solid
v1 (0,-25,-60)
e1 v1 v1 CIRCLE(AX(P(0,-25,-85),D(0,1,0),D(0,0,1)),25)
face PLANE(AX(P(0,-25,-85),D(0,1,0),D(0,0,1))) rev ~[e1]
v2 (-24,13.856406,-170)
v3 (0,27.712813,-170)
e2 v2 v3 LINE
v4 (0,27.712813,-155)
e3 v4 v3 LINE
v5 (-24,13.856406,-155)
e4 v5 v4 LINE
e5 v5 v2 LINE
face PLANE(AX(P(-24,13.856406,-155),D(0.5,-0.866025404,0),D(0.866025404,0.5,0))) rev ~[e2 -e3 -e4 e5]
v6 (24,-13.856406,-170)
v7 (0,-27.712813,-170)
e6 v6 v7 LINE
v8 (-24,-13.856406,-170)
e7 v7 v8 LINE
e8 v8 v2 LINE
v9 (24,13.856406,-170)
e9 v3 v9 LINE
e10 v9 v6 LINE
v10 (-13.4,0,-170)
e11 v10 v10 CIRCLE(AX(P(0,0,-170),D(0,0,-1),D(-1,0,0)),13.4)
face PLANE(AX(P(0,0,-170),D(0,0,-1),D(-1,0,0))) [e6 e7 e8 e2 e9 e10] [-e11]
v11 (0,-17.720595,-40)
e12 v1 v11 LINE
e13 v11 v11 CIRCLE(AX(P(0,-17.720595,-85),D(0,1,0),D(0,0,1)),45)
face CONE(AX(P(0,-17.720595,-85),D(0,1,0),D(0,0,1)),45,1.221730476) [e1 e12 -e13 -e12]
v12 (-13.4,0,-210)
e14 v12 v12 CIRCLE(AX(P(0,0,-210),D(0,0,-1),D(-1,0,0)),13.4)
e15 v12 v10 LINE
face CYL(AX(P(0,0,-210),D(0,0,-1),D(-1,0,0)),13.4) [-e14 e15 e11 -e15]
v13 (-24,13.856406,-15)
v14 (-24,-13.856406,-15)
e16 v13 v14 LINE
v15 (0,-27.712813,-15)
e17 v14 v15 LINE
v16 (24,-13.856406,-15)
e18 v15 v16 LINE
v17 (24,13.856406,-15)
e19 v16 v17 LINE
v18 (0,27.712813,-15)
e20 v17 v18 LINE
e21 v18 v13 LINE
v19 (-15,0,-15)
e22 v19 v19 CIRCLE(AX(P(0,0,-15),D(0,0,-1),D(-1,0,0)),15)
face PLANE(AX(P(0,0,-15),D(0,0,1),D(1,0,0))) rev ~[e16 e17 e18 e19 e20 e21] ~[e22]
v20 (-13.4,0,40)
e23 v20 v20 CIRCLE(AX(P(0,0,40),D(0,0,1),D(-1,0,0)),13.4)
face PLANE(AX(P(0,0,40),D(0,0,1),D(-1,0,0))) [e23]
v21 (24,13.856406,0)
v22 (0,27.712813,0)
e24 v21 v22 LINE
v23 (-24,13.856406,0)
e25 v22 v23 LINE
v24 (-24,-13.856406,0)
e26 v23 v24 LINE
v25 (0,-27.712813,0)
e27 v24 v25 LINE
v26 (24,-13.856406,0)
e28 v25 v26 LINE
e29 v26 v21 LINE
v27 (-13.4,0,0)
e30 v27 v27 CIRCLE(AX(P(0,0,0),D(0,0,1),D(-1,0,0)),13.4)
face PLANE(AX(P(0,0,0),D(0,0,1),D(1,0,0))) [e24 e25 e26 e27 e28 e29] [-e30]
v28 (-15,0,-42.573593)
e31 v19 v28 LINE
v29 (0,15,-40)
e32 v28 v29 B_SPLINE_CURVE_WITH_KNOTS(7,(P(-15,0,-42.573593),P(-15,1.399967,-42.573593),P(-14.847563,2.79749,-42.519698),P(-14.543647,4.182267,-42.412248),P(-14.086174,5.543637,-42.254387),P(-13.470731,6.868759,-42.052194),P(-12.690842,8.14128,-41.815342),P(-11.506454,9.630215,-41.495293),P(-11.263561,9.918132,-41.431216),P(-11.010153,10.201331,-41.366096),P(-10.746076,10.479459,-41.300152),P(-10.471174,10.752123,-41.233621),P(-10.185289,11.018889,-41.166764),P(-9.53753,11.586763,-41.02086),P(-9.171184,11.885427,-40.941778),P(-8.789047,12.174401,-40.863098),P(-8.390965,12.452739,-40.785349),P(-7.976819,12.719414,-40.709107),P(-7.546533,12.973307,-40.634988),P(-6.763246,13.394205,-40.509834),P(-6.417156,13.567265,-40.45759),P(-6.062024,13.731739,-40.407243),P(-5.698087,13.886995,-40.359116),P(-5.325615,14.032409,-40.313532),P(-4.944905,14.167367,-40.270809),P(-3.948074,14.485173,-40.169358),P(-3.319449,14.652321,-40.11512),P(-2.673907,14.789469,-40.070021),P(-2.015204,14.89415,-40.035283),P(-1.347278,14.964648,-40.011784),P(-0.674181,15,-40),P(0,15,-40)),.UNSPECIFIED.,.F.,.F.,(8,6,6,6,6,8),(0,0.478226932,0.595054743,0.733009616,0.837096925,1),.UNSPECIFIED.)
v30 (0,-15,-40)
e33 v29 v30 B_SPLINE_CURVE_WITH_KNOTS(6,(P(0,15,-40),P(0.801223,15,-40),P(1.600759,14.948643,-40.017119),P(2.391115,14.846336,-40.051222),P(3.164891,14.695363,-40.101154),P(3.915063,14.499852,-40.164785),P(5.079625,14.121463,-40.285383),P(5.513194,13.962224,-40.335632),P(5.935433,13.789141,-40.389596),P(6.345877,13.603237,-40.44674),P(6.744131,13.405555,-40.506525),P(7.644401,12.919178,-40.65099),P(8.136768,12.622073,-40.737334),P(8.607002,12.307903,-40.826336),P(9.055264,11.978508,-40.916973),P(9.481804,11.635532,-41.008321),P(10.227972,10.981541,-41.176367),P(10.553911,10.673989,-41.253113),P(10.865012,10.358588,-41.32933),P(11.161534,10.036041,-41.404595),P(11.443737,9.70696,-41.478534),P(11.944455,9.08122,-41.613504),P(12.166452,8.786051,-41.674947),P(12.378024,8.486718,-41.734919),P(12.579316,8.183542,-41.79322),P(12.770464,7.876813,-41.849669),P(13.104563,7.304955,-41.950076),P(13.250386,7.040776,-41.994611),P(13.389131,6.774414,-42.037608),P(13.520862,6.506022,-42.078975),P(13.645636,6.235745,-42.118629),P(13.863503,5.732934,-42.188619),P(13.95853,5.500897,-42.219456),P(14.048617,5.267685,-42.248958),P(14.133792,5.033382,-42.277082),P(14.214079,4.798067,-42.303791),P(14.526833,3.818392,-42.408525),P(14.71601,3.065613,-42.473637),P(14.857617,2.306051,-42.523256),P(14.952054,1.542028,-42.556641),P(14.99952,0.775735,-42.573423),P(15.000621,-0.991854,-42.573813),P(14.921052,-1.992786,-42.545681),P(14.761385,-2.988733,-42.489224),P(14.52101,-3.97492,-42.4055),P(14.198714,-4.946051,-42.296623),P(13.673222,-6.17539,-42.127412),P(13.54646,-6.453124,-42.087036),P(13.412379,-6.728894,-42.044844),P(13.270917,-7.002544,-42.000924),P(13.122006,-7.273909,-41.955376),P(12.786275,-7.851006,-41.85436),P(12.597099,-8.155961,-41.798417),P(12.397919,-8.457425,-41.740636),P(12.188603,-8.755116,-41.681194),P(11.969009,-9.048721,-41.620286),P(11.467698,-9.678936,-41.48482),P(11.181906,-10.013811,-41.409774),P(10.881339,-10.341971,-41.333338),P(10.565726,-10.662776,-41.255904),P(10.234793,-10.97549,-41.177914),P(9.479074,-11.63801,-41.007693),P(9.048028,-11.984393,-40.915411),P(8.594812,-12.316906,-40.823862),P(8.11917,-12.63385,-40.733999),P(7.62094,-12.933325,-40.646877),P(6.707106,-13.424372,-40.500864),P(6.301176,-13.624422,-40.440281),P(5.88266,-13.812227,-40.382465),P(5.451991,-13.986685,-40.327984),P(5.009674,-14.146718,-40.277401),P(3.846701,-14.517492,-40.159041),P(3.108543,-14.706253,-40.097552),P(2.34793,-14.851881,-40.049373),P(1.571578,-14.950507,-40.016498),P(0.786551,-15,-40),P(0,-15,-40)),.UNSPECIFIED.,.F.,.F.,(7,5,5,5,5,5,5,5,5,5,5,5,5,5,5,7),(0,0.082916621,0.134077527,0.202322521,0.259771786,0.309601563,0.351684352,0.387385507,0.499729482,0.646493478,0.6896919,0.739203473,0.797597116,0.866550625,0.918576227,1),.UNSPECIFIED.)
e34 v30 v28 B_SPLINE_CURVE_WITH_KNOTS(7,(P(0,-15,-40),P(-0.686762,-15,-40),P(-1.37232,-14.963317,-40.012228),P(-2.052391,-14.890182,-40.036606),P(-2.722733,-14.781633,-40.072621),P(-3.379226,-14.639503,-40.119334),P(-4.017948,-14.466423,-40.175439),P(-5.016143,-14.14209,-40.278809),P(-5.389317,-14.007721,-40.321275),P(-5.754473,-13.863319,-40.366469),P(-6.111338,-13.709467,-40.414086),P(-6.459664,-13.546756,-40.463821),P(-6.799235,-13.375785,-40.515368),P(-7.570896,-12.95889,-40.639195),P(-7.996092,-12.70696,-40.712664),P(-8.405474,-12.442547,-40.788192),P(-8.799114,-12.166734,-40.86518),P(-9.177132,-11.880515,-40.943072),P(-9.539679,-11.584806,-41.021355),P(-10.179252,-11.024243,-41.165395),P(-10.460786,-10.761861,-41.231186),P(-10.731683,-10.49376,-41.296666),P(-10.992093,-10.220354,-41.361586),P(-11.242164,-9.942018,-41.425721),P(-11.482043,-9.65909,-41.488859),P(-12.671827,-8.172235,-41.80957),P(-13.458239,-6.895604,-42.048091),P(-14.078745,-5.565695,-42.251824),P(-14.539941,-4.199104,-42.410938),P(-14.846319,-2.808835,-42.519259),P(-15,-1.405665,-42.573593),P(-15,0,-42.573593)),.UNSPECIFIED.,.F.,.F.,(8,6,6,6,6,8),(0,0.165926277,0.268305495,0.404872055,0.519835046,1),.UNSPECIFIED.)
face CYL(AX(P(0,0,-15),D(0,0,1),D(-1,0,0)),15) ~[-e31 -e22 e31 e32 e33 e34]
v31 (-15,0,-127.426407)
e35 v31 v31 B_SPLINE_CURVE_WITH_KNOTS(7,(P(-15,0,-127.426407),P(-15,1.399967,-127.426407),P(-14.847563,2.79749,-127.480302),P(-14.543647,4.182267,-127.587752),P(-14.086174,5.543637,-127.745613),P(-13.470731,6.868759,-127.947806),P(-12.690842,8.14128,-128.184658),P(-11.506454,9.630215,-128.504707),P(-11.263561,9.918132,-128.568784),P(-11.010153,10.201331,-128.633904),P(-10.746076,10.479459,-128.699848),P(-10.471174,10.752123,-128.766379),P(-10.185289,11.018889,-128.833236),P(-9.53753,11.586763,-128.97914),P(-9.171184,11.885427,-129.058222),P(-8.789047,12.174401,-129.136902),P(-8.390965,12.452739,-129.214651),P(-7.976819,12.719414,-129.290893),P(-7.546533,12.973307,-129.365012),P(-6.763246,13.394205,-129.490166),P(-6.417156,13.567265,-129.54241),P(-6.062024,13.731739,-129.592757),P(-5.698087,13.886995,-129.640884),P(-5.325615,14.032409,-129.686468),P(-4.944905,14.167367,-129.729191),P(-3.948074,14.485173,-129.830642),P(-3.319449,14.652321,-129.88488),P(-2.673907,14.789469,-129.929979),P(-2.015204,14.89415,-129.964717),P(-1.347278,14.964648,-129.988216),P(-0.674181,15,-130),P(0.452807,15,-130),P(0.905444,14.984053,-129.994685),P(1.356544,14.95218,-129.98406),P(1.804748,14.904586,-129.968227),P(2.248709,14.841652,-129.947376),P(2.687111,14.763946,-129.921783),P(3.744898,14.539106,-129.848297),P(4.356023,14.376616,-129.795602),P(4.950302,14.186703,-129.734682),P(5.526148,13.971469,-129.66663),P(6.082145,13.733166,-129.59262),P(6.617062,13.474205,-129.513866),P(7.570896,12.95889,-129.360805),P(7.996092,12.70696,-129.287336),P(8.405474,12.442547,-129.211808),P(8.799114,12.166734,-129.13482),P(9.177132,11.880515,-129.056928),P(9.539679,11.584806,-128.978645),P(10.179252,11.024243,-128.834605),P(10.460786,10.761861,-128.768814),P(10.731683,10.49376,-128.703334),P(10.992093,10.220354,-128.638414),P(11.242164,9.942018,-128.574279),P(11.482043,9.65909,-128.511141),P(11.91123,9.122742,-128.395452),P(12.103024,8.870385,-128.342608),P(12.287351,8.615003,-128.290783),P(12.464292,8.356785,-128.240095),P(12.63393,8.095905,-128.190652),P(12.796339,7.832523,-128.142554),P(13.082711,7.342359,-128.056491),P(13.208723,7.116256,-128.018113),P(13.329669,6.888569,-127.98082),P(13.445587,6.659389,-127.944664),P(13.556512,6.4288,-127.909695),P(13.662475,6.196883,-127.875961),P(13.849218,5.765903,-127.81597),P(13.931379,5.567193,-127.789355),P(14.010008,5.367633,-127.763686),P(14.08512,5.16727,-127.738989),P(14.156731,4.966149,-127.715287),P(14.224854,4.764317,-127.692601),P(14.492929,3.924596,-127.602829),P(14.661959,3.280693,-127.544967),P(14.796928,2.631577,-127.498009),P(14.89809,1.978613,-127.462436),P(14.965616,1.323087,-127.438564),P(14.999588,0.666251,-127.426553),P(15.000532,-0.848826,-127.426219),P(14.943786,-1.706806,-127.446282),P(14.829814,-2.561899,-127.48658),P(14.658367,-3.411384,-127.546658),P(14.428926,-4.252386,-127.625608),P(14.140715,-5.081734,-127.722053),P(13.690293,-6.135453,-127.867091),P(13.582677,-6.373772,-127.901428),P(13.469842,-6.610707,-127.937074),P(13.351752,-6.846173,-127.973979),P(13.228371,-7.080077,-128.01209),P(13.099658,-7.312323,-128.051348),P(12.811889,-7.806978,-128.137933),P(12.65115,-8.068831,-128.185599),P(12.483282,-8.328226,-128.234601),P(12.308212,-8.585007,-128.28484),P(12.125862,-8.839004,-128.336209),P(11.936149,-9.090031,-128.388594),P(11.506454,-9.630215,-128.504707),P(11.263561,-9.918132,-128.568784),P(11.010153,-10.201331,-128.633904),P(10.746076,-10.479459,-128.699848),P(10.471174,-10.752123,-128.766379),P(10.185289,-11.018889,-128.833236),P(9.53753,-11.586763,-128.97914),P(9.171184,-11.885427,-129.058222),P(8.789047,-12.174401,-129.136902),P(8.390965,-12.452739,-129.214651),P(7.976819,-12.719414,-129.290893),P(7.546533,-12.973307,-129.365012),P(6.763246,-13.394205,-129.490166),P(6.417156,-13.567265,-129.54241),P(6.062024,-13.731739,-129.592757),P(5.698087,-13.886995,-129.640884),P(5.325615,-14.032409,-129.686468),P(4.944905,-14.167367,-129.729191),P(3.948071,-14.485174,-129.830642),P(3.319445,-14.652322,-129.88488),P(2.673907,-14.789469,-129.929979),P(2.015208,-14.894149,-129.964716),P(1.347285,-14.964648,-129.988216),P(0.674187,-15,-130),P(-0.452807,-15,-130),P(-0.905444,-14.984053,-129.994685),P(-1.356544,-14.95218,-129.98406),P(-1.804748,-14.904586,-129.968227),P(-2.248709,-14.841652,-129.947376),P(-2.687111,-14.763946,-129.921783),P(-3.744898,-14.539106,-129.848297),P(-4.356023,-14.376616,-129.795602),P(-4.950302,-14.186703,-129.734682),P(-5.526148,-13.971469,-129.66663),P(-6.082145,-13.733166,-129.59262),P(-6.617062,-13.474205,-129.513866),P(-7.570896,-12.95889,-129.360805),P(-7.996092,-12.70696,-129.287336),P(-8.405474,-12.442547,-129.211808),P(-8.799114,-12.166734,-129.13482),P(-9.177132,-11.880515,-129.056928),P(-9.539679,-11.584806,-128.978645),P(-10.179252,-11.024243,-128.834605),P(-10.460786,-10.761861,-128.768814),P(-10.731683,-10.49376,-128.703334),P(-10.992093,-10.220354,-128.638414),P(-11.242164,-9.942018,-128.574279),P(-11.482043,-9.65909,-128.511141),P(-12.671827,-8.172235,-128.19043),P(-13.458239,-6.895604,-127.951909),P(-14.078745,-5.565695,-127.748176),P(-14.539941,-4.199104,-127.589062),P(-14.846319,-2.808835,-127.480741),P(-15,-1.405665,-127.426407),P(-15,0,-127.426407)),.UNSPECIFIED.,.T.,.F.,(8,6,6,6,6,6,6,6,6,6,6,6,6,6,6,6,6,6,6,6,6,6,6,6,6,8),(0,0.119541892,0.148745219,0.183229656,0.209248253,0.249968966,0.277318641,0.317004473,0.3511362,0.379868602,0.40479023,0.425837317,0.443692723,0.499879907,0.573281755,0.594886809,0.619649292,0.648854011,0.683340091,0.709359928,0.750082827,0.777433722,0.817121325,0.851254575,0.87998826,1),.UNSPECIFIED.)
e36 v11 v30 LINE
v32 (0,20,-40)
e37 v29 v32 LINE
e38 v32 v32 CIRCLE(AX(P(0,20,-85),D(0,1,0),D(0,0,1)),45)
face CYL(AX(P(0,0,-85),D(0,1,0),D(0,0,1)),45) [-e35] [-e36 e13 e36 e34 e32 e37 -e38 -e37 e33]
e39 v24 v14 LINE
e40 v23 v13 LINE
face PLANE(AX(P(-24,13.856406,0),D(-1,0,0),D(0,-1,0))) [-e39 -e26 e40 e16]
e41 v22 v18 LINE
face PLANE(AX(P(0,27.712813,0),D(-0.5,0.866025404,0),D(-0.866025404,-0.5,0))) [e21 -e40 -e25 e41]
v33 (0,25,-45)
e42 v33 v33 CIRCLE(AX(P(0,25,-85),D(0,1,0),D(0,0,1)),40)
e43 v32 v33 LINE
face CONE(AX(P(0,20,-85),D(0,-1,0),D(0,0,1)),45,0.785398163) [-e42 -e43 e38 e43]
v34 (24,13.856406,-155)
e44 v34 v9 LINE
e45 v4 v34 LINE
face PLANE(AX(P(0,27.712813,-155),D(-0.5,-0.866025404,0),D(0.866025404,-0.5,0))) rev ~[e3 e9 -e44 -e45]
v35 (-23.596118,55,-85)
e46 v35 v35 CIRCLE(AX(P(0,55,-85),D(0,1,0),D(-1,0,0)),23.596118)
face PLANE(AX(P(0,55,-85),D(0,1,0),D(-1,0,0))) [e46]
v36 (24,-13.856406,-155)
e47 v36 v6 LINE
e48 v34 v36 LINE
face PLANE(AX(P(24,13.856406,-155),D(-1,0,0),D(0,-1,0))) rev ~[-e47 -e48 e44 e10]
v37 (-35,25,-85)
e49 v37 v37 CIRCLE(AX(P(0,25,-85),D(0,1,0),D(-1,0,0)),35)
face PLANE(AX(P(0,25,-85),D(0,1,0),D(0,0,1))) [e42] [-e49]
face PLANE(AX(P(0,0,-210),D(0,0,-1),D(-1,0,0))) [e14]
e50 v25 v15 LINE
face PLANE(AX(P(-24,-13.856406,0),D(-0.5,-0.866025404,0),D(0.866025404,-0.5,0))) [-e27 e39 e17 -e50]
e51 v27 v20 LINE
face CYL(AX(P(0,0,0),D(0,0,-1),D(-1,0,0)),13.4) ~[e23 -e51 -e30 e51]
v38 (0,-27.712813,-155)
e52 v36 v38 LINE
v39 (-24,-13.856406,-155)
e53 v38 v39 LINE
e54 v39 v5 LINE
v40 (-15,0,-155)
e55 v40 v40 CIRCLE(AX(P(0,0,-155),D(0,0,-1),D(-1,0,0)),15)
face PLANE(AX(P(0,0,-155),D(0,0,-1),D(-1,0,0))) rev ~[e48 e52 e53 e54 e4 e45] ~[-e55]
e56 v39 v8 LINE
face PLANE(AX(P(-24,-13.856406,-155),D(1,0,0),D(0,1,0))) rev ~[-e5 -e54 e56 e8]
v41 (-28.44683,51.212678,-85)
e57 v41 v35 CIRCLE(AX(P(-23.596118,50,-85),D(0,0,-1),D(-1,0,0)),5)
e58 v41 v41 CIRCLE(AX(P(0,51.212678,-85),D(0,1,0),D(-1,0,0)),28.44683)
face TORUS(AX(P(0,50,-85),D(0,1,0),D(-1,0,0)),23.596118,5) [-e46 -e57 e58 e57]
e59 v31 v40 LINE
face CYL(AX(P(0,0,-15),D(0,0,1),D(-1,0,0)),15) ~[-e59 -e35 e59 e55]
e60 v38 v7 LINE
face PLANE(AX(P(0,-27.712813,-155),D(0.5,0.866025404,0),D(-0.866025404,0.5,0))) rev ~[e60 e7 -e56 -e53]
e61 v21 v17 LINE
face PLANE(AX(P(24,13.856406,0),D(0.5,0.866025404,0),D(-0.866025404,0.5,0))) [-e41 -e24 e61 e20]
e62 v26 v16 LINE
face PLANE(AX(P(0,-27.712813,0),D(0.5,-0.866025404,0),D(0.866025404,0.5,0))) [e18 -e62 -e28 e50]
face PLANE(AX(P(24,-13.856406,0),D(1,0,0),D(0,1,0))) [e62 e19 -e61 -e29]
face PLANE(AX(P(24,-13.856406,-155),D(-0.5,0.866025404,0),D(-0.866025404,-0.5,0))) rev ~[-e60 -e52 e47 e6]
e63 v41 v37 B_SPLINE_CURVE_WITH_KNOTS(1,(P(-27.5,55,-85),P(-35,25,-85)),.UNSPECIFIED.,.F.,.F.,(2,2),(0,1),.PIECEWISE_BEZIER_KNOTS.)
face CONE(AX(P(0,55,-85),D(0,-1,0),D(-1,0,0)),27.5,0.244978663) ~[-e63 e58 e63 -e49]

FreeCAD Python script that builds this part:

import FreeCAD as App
import Part
import Sketcher

V = App.Vector
Q = App.Units.Quantity


def edges_at(feature, points):
    """Names of the edges that pass closest to the given points."""
    edges = feature.Shape.Edges
    near = lambda p: min(range(len(edges)), key=lambda i: edges[i].distToShape(Part.Vertex(*p))[0])
    return sorted({f"Edge{near(p) + 1}" for p in points})

doc = App.newDocument("Part")
body = doc.addObject("PartDesign::Body", "Body")

# Sketch on XY plane
sketch1 = body.newObject("Sketcher::SketchObject", "Sketch")
sketch1.AttachmentSupport = (doc.getObject("XY_Plane"), [""])
sketch1.MapMode = "FlatFace"
sketch1.addGeometry(Part.LineSegment(V(0, 28, 0), V(-24, 14, 0)), False)
sketch1.addGeometry(Part.LineSegment(V(-24, 14, 0), V(-24, -14, 0)), False)
sketch1.addGeometry(Part.LineSegment(V(-24, -14, 0), V(0, -28, 0)), False)
sketch1.addGeometry(Part.LineSegment(V(0, -28, 0), V(24, -14, 0)), False)
sketch1.addGeometry(Part.LineSegment(V(24, -14, 0), V(24, 14, 0)), False)
sketch1.addGeometry(Part.LineSegment(V(24, 14, 0), V(0, 28, 0)), False)
sketch1.addConstraint(Sketcher.Constraint("Coincident", 0, 2, 1, 1))
sketch1.addConstraint(Sketcher.Constraint("Coincident", 1, 2, 2, 1))
sketch1.addConstraint(Sketcher.Constraint("Coincident", 2, 2, 3, 1))
sketch1.addConstraint(Sketcher.Constraint("Coincident", 3, 2, 4, 1))
sketch1.addConstraint(Sketcher.Constraint("Coincident", 4, 2, 5, 1))
sketch1.addConstraint(Sketcher.Constraint("Coincident", 5, 2, 0, 1))
sketch1.addConstraint(Sketcher.Constraint("Vertical", 1))
sketch1.addConstraint(Sketcher.Constraint("Vertical", 4))
sketch1.addConstraint(Sketcher.Constraint("Symmetric", 0, 2, 3, 2, -1, 1))
sketch1.addConstraint(Sketcher.Constraint("Symmetric", 2, 2, 5, 2, -1, 1))
sketch1.addConstraint(Sketcher.Constraint("PointOnObject", 2, 2, -2))
sketch1.addConstraint(Sketcher.Constraint("Parallel", 2, 5))
sketch1.addConstraint(Sketcher.Constraint("Horizontal", 1, 2, 3, 2))
sketch1.addConstraint(Sketcher.Constraint("Angle", 0, Q("-150 deg")))
sketch1.addConstraint(Sketcher.Constraint("DistanceX", 0, 2, -1, 1, 24.0))
sketch1.addConstraint(Sketcher.Constraint("DistanceY", 1, 2, 1, 1, 27.712813))
pad1 = body.newObject("PartDesign::Pad", "Pad")
pad1.Profile = sketch1
pad1.Length = 15
pad1.Reversed = True

# Sketch on XY plane
sketch2 = body.newObject("Sketcher::SketchObject", "Sketch001")
sketch2.AttachmentSupport = (doc.getObject("XY_Plane"), [""])
sketch2.MapMode = "FlatFace"
sketch2.AttachmentOffset = App.Placement(V(0, 0, -15), App.Rotation())
sketch2.addGeometry(Part.Circle(V(0, 0, 0), V(0, 0, 1), 15), False)
sketch2.addConstraint(Sketcher.Constraint("Coincident", 0, 3, -1, 1))
sketch2.addConstraint(Sketcher.Constraint("Diameter", 0, 30.0))
pad2 = body.newObject("PartDesign::Pad", "Pad001")
pad2.Profile = sketch2
pad2.Length = 140
pad2.Reversed = True

# Sketch on XY plane
sketch3 = body.newObject("Sketcher::SketchObject", "Sketch002")
sketch3.AttachmentSupport = (doc.getObject("XY_Plane"), [""])
sketch3.MapMode = "FlatFace"
sketch3.AttachmentOffset = App.Placement(V(0, 0, -155), App.Rotation())
sketch3.addGeometry(Part.LineSegment(V(0, 28, 0), V(24, 14, 0)), False)
sketch3.addGeometry(Part.LineSegment(V(24, 14, 0), V(24, -14, 0)), False)
sketch3.addGeometry(Part.LineSegment(V(24, -14, 0), V(0, -28, 0)), False)
sketch3.addGeometry(Part.LineSegment(V(0, -28, 0), V(-24, -14, 0)), False)
sketch3.addGeometry(Part.LineSegment(V(-24, -14, 0), V(-24, 14, 0)), False)
sketch3.addGeometry(Part.LineSegment(V(-24, 14, 0), V(0, 28, 0)), False)
sketch3.addConstraint(Sketcher.Constraint("Coincident", 0, 2, 1, 1))
sketch3.addConstraint(Sketcher.Constraint("Coincident", 1, 2, 2, 1))
sketch3.addConstraint(Sketcher.Constraint("Coincident", 2, 2, 3, 1))
sketch3.addConstraint(Sketcher.Constraint("Coincident", 3, 2, 4, 1))
sketch3.addConstraint(Sketcher.Constraint("Coincident", 4, 2, 5, 1))
sketch3.addConstraint(Sketcher.Constraint("Coincident", 5, 2, 0, 1))
sketch3.addConstraint(Sketcher.Constraint("Vertical", 1))
sketch3.addConstraint(Sketcher.Constraint("Vertical", 4))
sketch3.addConstraint(Sketcher.Constraint("Symmetric", 0, 2, 3, 2, -1, 1))
sketch3.addConstraint(Sketcher.Constraint("Symmetric", 2, 2, 5, 2, -1, 1))
sketch3.addConstraint(Sketcher.Constraint("PointOnObject", 2, 2, -2))
sketch3.addConstraint(Sketcher.Constraint("Parallel", 2, 5))
sketch3.addConstraint(Sketcher.Constraint("Horizontal", 1, 2, 3, 2))
sketch3.addConstraint(Sketcher.Constraint("Angle", 0, Q("-30 deg")))
sketch3.addConstraint(Sketcher.Constraint("DistanceX", -1, 1, 0, 2, 24.0))
sketch3.addConstraint(Sketcher.Constraint("DistanceY", 1, 2, 1, 1, 27.712813))
pad3 = body.newObject("PartDesign::Pad", "Pad002")
pad3.Profile = sketch3
pad3.Length = 15
pad3.Reversed = True

# Sketch on XY plane
sketch4 = body.newObject("Sketcher::SketchObject", "Sketch003")
sketch4.AttachmentSupport = (doc.getObject("XY_Plane"), [""])
sketch4.MapMode = "FlatFace"
sketch4.addGeometry(Part.Circle(V(0, 0, 0), V(0, 0, 1), 13), False)
sketch4.addConstraint(Sketcher.Constraint("Coincident", 0, 3, -1, 1))
sketch4.addConstraint(Sketcher.Constraint("Diameter", 0, 26.8))
pad4 = body.newObject("PartDesign::Pad", "Pad003")
pad4.Profile = sketch4
pad4.Length = 40

# Sketch on XY plane
sketch5 = body.newObject("Sketcher::SketchObject", "Sketch004")
sketch5.AttachmentSupport = (doc.getObject("XY_Plane"), [""])
sketch5.MapMode = "FlatFace"
sketch5.AttachmentOffset = App.Placement(V(0, 0, -210), App.Rotation())
sketch5.addGeometry(Part.Circle(V(0, 0, 0), V(0, 0, 1), 13), False)
sketch5.addConstraint(Sketcher.Constraint("Coincident", 0, 3, -1, 1))
sketch5.addConstraint(Sketcher.Constraint("Diameter", 0, 26.8))
pad5 = body.newObject("PartDesign::Pad", "Pad004")
pad5.Profile = sketch5
pad5.Length = 40

# Sketch on XZ plane
sketch6 = body.newObject("Sketcher::SketchObject", "Sketch005")
sketch6.AttachmentSupport = (doc.getObject("XZ_Plane"), [""])
sketch6.MapMode = "FlatFace"
sketch6.addGeometry(Part.Circle(V(0, -85, 0), V(0, 0, 1), 45), False)
sketch6.addConstraint(Sketcher.Constraint("PointOnObject", 0, 3, -2))
sketch6.addConstraint(Sketcher.Constraint("Diameter", 0, 90.0))
sketch6.addConstraint(Sketcher.Constraint("DistanceY", 0, 3, -1, 1, 85.0))
pad6 = body.newObject("PartDesign::Pad", "Pad005")
pad6.Profile = sketch6
pad6.Length = 50
pad6.Midplane = True
doc.recompute()

chamfer = body.newObject("PartDesign::Chamfer", "Chamfer")
chamfer.Base = (pad6, edges_at(pad6, [(0, -25, -130)]))
chamfer.ChamferType = "Two distances"
chamfer.Size = 20
chamfer.Size2 = 7.279405
chamfer.FlipDirection = True
doc.recompute()

chamfer2 = body.newObject("PartDesign::Chamfer", "Chamfer001")
chamfer2.Base = (chamfer, edges_at(chamfer, [(0, 25, -130)]))
chamfer2.Size = 5

# Sketch on XZ plane
sketch7 = body.newObject("Sketcher::SketchObject", "Sketch006")
sketch7.AttachmentSupport = (doc.getObject("XZ_Plane"), [""])
sketch7.MapMode = "FlatFace"
sketch7.AttachmentOffset = App.Placement(V(0, 0, -55), App.Rotation())
sketch7.addGeometry(Part.Circle(V(0, -85, 0), V(0, 0, 1), 28), False)
sketch7.addConstraint(Sketcher.Constraint("PointOnObject", 0, 3, -2))
sketch7.addConstraint(Sketcher.Constraint("Diameter", 0, 55.0))
sketch7.addConstraint(Sketcher.Constraint("DistanceY", 0, 3, -1, 1, 85.0))

# Sketch on XZ plane
sketch8 = body.newObject("Sketcher::SketchObject", "Sketch007")
sketch8.AttachmentSupport = (doc.getObject("XZ_Plane"), [""])
sketch8.MapMode = "FlatFace"
sketch8.AttachmentOffset = App.Placement(V(0, 0, -25), App.Rotation())
sketch8.addGeometry(Part.Circle(V(0, -85, 0), V(0, 0, 1), 35), False)
sketch8.addConstraint(Sketcher.Constraint("PointOnObject", 0, 3, -2))
sketch8.addConstraint(Sketcher.Constraint("Diameter", 0, 70.0))
sketch8.addConstraint(Sketcher.Constraint("DistanceY", 0, 3, -1, 1, 85.0))

additiveloft = body.newObject("PartDesign::AdditiveLoft", "AdditiveLoft")
additiveloft.Profile = sketch7
additiveloft.Sections = [sketch8]
doc.recompute()

fillet = body.newObject("PartDesign::Fillet", "Fillet")
fillet.Base = (additiveloft, edges_at(additiveloft, [(27.5, 55, -85)]))
fillet.Radius = 5

doc.recompute()
